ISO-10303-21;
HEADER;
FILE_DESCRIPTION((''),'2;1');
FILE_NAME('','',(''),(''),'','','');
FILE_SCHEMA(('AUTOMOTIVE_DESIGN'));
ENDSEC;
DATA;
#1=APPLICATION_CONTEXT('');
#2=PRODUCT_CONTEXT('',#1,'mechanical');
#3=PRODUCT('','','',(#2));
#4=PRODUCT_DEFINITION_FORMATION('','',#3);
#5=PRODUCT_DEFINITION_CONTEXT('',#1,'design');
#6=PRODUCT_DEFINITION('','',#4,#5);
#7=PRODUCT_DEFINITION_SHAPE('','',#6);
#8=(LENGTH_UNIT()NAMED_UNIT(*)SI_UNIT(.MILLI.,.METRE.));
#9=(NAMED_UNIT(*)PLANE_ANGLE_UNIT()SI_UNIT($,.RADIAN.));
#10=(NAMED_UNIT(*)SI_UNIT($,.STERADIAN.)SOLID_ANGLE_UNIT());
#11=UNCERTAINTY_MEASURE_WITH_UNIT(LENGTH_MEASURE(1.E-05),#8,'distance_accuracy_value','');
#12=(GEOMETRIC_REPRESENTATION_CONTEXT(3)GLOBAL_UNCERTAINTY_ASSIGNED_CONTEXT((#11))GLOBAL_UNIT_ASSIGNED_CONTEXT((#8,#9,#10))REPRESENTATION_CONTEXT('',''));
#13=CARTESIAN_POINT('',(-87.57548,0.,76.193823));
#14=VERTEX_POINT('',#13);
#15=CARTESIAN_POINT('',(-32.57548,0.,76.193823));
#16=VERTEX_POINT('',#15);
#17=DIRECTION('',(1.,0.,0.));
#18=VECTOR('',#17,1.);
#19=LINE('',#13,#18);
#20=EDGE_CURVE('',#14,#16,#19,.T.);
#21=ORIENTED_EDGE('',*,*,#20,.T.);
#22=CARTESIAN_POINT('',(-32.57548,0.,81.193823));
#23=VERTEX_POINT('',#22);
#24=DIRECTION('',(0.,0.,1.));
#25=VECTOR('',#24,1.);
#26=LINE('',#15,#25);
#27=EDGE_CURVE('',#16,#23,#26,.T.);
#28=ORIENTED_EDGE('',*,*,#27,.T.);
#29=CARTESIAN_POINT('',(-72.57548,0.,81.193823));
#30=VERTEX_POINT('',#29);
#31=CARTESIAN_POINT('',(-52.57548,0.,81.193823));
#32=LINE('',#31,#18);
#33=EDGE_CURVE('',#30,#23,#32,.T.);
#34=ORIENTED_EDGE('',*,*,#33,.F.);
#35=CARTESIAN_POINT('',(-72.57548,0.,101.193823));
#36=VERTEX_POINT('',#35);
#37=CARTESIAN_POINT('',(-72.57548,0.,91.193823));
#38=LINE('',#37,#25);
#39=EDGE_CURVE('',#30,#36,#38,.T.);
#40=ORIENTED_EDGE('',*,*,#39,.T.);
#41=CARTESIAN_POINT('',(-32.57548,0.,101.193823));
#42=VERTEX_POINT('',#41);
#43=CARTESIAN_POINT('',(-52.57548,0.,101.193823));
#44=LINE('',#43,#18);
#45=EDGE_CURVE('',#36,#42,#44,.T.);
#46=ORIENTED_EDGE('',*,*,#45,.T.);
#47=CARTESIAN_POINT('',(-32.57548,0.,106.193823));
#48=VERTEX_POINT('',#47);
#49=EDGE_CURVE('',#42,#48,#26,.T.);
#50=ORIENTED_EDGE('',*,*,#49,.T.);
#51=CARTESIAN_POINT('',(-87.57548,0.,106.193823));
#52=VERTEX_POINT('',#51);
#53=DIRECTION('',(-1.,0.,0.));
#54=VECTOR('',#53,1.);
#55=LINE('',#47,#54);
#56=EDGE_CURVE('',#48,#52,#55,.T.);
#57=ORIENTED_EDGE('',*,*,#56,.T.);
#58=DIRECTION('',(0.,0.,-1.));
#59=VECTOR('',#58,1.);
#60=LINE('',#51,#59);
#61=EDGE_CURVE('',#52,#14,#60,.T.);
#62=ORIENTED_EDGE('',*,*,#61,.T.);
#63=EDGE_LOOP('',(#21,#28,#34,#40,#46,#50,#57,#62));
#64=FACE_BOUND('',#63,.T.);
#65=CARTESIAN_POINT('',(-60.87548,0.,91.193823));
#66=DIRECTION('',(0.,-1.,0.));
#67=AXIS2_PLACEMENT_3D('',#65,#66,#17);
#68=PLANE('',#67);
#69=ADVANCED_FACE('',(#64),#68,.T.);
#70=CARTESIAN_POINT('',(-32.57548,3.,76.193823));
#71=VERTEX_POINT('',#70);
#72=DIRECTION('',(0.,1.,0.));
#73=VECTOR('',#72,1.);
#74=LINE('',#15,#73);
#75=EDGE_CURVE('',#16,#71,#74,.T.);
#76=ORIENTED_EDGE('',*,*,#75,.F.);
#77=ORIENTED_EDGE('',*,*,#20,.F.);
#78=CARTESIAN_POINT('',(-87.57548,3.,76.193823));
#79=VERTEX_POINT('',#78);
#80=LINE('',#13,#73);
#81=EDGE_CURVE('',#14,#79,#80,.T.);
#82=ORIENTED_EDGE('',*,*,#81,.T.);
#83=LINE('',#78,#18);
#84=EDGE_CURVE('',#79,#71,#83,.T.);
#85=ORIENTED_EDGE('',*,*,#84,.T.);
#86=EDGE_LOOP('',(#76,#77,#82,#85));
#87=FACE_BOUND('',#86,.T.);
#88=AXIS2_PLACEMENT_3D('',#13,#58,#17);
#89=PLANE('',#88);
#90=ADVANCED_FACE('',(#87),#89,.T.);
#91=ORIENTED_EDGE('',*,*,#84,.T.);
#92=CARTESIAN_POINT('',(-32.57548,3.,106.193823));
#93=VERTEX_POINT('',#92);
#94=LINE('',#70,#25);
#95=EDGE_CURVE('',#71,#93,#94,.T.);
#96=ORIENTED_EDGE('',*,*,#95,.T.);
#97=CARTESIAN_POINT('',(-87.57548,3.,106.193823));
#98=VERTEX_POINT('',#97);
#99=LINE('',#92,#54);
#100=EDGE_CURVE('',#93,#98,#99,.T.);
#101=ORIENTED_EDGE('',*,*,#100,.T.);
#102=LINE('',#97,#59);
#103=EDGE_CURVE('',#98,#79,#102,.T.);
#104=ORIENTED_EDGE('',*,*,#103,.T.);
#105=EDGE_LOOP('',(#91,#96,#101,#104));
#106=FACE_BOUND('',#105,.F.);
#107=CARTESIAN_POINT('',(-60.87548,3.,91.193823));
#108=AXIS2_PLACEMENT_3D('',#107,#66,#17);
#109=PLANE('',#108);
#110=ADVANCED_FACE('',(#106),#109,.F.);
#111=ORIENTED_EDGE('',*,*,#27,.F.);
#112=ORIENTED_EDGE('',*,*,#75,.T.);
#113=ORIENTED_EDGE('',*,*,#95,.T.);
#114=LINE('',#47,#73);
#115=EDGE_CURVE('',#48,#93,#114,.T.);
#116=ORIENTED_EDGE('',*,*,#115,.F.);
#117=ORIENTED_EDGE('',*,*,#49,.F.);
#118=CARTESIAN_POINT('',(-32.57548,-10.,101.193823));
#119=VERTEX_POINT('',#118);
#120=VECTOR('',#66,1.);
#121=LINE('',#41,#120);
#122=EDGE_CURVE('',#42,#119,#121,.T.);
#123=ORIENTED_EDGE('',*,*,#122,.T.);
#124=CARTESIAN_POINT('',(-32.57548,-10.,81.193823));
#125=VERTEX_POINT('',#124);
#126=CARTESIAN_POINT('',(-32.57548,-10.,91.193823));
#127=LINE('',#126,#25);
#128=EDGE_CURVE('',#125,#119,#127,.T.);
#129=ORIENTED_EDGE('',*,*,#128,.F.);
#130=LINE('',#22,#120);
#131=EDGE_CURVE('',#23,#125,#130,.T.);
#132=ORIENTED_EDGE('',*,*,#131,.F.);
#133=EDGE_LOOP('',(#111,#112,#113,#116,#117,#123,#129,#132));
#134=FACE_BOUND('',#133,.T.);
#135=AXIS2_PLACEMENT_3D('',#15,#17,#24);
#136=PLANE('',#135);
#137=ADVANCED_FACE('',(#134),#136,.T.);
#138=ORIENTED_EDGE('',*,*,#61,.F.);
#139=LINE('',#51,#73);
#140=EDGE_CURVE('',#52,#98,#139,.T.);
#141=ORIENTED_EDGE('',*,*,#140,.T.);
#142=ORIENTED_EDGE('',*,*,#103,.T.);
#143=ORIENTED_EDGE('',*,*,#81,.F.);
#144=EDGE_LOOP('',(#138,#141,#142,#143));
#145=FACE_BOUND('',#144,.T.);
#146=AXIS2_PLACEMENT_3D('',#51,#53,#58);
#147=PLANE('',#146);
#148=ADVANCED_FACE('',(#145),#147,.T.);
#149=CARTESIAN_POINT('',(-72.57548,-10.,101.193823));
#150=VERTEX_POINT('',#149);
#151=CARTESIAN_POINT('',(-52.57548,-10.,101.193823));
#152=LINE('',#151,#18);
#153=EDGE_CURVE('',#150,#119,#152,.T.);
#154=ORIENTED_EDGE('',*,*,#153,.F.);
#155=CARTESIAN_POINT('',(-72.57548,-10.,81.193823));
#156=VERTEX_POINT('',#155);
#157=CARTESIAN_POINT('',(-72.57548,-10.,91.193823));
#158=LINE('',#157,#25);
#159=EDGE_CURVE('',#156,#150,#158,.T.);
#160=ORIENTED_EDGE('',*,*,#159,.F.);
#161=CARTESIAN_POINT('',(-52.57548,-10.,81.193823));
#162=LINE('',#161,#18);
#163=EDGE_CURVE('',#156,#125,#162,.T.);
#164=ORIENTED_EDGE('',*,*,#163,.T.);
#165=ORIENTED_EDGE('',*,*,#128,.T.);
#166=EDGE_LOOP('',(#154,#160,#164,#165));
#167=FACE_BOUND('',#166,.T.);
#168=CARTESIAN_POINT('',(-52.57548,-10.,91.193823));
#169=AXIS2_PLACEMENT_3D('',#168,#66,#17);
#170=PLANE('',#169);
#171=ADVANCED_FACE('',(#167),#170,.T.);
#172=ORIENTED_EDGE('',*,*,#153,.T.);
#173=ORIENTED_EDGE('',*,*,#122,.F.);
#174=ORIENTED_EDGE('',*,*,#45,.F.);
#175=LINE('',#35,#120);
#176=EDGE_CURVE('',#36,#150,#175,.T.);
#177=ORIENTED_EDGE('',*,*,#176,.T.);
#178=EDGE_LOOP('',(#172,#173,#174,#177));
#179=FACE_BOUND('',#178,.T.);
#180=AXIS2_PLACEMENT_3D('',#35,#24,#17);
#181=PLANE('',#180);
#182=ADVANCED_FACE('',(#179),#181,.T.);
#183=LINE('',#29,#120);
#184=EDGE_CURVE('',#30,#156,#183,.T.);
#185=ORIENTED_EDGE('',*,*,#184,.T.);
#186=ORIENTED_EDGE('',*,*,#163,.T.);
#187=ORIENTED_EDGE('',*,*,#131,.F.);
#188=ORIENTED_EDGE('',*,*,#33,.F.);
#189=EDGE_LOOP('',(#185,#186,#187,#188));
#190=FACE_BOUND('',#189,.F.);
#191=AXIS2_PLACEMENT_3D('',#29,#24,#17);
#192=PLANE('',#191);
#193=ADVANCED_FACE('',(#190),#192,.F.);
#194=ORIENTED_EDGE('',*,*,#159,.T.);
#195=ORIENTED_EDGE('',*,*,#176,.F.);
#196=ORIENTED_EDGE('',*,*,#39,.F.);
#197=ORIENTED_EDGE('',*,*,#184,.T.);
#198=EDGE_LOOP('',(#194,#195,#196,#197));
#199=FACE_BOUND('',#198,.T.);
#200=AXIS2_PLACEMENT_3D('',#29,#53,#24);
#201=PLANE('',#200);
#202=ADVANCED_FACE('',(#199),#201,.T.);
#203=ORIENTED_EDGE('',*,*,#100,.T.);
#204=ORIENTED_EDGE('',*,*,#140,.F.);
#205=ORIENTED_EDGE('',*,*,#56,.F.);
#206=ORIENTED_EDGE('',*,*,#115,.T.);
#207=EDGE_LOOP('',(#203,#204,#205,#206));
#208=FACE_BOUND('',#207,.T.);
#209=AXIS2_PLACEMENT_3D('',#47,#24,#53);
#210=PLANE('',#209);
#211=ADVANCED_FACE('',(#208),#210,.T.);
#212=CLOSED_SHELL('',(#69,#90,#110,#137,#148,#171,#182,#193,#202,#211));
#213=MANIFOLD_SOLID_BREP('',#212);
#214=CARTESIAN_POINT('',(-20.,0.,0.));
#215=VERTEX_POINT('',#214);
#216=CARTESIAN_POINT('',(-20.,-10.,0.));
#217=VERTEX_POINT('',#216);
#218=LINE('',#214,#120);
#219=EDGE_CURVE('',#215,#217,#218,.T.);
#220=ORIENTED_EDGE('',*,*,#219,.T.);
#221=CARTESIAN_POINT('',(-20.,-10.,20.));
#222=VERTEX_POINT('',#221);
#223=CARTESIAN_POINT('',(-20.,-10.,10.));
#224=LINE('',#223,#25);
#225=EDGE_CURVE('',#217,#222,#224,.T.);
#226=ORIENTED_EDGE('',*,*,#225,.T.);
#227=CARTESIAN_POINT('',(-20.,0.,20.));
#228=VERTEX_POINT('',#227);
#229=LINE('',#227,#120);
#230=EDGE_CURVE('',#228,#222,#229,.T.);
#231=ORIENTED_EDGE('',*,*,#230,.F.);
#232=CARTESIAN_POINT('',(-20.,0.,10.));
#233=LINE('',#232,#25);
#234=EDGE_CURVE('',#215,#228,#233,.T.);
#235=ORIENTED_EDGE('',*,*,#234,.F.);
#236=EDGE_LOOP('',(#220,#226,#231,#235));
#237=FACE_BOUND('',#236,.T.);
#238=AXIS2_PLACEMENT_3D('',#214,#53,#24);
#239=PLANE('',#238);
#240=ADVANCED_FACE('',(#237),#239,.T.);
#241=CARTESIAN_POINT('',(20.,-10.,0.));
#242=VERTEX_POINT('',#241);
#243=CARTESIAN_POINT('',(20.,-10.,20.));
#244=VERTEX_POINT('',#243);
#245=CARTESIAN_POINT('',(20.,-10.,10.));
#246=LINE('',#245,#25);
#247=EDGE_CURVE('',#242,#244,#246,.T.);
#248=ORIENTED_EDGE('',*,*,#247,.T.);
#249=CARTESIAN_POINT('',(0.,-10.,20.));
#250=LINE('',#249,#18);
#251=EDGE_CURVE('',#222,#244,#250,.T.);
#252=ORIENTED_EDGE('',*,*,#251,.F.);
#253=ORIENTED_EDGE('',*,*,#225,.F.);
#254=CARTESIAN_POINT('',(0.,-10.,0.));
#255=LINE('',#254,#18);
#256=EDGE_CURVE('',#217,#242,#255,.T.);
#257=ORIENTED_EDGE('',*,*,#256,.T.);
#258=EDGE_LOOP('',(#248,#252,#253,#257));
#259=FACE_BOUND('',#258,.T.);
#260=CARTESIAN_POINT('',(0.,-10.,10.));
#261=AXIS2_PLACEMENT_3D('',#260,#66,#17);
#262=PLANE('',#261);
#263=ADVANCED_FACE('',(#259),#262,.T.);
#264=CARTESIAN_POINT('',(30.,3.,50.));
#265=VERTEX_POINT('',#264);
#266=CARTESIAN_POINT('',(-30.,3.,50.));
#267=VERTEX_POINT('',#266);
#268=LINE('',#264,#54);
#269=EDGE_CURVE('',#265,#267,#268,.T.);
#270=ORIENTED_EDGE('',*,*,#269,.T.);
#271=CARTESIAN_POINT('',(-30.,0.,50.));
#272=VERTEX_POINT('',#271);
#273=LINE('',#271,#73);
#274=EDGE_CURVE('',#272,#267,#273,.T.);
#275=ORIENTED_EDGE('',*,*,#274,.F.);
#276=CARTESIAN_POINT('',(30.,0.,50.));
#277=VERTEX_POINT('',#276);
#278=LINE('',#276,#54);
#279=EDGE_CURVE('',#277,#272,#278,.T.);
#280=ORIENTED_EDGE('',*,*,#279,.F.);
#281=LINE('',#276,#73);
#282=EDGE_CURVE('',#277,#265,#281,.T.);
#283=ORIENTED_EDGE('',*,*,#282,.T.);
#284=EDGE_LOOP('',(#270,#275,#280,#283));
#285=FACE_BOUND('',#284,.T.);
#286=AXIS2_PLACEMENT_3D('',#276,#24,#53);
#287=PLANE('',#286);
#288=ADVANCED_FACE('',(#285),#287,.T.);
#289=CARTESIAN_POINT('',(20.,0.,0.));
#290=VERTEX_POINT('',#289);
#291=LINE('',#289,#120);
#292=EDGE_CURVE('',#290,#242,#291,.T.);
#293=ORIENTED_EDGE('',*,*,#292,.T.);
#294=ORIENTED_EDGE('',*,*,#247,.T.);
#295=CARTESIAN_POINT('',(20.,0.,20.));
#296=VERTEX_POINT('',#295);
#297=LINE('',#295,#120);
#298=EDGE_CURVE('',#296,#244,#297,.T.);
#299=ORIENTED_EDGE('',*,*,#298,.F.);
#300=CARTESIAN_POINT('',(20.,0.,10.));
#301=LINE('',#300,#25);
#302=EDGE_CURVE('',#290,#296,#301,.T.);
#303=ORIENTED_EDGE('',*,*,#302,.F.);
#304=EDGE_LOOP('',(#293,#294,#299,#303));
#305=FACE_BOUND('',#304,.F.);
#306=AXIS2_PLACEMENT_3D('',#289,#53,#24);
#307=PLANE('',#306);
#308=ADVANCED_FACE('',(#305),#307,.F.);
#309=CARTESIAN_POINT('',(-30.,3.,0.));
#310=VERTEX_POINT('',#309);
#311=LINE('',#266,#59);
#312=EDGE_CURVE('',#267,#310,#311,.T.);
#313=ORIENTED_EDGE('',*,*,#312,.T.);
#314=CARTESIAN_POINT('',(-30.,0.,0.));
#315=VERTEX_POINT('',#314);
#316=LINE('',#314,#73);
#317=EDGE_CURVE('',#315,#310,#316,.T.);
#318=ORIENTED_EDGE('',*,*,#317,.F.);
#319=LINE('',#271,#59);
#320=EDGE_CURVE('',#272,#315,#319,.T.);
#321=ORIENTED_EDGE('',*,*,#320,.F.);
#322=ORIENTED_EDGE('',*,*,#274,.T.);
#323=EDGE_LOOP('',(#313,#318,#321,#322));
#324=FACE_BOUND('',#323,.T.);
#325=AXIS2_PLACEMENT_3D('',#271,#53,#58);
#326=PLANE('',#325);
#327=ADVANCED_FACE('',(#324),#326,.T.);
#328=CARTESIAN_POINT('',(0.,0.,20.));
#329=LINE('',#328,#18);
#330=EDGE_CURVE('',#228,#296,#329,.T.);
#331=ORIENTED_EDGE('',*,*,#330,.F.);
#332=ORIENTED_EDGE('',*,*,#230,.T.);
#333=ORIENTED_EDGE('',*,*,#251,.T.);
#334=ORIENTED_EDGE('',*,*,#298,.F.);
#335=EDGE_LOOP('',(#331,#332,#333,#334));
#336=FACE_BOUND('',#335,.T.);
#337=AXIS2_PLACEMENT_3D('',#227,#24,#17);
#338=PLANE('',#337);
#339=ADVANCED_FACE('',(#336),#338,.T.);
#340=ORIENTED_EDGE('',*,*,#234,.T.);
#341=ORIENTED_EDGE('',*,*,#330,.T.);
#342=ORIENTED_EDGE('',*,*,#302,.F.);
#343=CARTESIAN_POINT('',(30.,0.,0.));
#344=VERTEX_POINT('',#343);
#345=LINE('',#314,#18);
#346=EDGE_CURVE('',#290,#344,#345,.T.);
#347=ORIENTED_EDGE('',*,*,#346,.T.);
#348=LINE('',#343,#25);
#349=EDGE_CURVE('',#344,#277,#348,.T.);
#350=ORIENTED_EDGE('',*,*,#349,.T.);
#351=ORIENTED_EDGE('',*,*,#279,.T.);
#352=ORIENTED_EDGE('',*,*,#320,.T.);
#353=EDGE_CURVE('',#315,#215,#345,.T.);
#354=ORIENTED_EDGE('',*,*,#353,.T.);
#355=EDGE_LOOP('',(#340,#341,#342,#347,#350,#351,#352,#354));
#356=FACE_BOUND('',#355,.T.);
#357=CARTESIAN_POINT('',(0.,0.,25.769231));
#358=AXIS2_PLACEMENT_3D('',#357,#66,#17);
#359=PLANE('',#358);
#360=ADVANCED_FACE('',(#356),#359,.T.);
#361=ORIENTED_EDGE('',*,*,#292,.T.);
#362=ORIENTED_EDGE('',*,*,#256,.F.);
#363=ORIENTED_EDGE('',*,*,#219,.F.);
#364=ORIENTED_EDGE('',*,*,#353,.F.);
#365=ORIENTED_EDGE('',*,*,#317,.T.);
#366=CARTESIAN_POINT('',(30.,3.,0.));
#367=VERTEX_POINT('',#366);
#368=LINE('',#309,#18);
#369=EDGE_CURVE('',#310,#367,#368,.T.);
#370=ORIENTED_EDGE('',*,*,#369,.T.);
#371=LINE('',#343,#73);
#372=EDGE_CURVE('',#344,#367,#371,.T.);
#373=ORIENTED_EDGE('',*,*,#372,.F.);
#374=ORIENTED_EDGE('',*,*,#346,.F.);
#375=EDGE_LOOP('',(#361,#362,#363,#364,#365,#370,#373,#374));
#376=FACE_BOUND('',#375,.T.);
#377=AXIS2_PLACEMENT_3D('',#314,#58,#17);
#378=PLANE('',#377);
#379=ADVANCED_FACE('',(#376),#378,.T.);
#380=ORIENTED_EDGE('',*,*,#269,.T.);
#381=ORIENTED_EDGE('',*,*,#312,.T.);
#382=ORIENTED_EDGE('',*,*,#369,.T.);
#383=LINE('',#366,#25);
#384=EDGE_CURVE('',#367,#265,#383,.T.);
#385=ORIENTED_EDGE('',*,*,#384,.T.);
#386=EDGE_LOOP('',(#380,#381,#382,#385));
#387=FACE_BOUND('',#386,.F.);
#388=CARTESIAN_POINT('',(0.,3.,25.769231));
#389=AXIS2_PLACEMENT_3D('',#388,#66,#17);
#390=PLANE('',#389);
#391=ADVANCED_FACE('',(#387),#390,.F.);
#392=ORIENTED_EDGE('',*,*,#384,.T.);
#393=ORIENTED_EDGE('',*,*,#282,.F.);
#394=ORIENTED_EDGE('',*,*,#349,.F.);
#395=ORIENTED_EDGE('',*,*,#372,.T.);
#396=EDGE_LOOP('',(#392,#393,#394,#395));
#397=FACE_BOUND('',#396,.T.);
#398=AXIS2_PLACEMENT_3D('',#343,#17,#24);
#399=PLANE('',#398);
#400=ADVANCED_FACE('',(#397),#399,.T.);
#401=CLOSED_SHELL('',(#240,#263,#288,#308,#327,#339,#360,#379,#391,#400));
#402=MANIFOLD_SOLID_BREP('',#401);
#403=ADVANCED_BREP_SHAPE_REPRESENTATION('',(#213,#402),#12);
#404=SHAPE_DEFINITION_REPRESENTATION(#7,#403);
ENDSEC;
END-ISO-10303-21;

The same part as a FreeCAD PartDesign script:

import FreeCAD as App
import Part
import Sketcher

V = App.Vector

doc = App.newDocument("Part")
body = doc.addObject("PartDesign::Body", "Body")
body.AllowCompound = True

sketch1 = doc.addObject("Sketcher::SketchObject", "Sketch")
body.addObject(sketch1)
sketch1.AttachmentSupport = (doc.XZ_Plane, [""])
sketch1.MapMode = "FlatFace"
sketch1.addGeometry(Part.LineSegment(V(30, 50, 0), V(-30, 50, 0)), False)
sketch1.addGeometry(Part.LineSegment(V(-30, 50, 0), V(-30, 0, 0)), False)
sketch1.addGeometry(Part.LineSegment(V(-30, 0, 0), V(30, 0, 0)), False)
sketch1.addGeometry(Part.LineSegment(V(30, 0, 0), V(30, 50, 0)), False)
sketch1.addGeometry(Part.LineSegment(V(-33, 106, 0), V(-88, 106, 0)), False)
sketch1.addGeometry(Part.LineSegment(V(-88, 106, 0), V(-88, 76, 0)), False)
sketch1.addGeometry(Part.LineSegment(V(-88, 76, 0), V(-33, 76, 0)), False)
sketch1.addGeometry(Part.LineSegment(V(-33, 76, 0), V(-33, 106, 0)), False)
sketch1.addConstraint(Sketcher.Constraint("Coincident", 0, 2, 1, 1))
sketch1.addConstraint(Sketcher.Constraint("Coincident", 1, 2, 2, 1))
sketch1.addConstraint(Sketcher.Constraint("Coincident", 2, 2, 3, 1))
sketch1.addConstraint(Sketcher.Constraint("Coincident", 3, 2, 0, 1))
sketch1.addConstraint(Sketcher.Constraint("Coincident", 4, 2, 5, 1))
sketch1.addConstraint(Sketcher.Constraint("Coincident", 5, 2, 6, 1))
sketch1.addConstraint(Sketcher.Constraint("Coincident", 6, 2, 7, 1))
sketch1.addConstraint(Sketcher.Constraint("Coincident", 7, 2, 4, 1))
sketch1.addConstraint(Sketcher.Constraint("Horizontal", 0))
sketch1.addConstraint(Sketcher.Constraint("Vertical", 1))
sketch1.addConstraint(Sketcher.Constraint("Horizontal", 2))
sketch1.addConstraint(Sketcher.Constraint("Vertical", 3))
sketch1.addConstraint(Sketcher.Constraint("Horizontal", 4))
sketch1.addConstraint(Sketcher.Constraint("Vertical", 5))
sketch1.addConstraint(Sketcher.Constraint("Horizontal", 6))
sketch1.addConstraint(Sketcher.Constraint("Vertical", 7))
sketch1.addConstraint(Sketcher.Constraint("Symmetric", 1, 2, 2, 2, -1, 1))
sketch1.addConstraint(Sketcher.Constraint("DistanceX", 0, 2, 0, 1, 60.0))
sketch1.addConstraint(Sketcher.Constraint("DistanceX", 4, 2, 4, 1, 55.0))
sketch1.addConstraint(Sketcher.Constraint("DistanceY", 1, 2, 1, 1, 50.0))
sketch1.addConstraint(Sketcher.Constraint("DistanceY", 5, 2, 5, 1, 30.0))
sketch1.addConstraint(Sketcher.Constraint("DistanceX", 4, 2, -1, 1, 87.57548))
sketch1.addConstraint(Sketcher.Constraint("DistanceY", -1, 1, 4, 2, 106.193823))
pad1 = doc.addObject("PartDesign::Pad", "Pad")
body.addObject(pad1)
pad1.Profile = sketch1
pad1.Length = 3
pad1.Reversed = True

sketch2 = doc.addObject("Sketcher::SketchObject", "Sketch001")
body.addObject(sketch2)
sketch2.AttachmentSupport = (doc.XZ_Plane, [""])
sketch2.MapMode = "FlatFace"
sketch2.addGeometry(Part.LineSegment(V(-20, 20, 0), V(-20, 0, 0)), False)
sketch2.addGeometry(Part.LineSegment(V(-20, 0, 0), V(20, 0, 0)), False)
sketch2.addGeometry(Part.LineSegment(V(20, 0, 0), V(20, 20, 0)), False)
sketch2.addGeometry(Part.LineSegment(V(20, 20, 0), V(-20, 20, 0)), False)
sketch2.addGeometry(Part.LineSegment(V(-73, 101, 0), V(-73, 81, 0)), False)
sketch2.addGeometry(Part.LineSegment(V(-73, 81, 0), V(-33, 81, 0)), False)
sketch2.addGeometry(Part.LineSegment(V(-33, 81, 0), V(-33, 101, 0)), False)
sketch2.addGeometry(Part.LineSegment(V(-33, 101, 0), V(-73, 101, 0)), False)
sketch2.addConstraint(Sketcher.Constraint("Coincident", 0, 2, 1, 1))
sketch2.addConstraint(Sketcher.Constraint("Coincident", 1, 2, 2, 1))
sketch2.addConstraint(Sketcher.Constraint("Coincident", 2, 2, 3, 1))
sketch2.addConstraint(Sketcher.Constraint("Coincident", 3, 2, 0, 1))
sketch2.addConstraint(Sketcher.Constraint("Coincident", 4, 2, 5, 1))
sketch2.addConstraint(Sketcher.Constraint("Coincident", 5, 2, 6, 1))
sketch2.addConstraint(Sketcher.Constraint("Coincident", 6, 2, 7, 1))
sketch2.addConstraint(Sketcher.Constraint("Coincident", 7, 2, 4, 1))
sketch2.addConstraint(Sketcher.Constraint("Vertical", 0))
sketch2.addConstraint(Sketcher.Constraint("Horizontal", 1))
sketch2.addConstraint(Sketcher.Constraint("Vertical", 2))
sketch2.addConstraint(Sketcher.Constraint("Horizontal", 3))
sketch2.addConstraint(Sketcher.Constraint("Vertical", 4))
sketch2.addConstraint(Sketcher.Constraint("Horizontal", 5))
sketch2.addConstraint(Sketcher.Constraint("Vertical", 6))
sketch2.addConstraint(Sketcher.Constraint("Horizontal", 7))
sketch2.addConstraint(Sketcher.Constraint("Symmetric", 0, 2, 1, 2, -1, 1))
sketch2.addConstraint(Sketcher.Constraint("Equal", 3, 5))
sketch2.addConstraint(Sketcher.Constraint("Equal", 2, 4))
sketch2.addConstraint(Sketcher.Constraint("DistanceX", 1, 1, 1, 2, 40.0))
sketch2.addConstraint(Sketcher.Constraint("DistanceY", 0, 2, 0, 1, 20.0))
sketch2.addConstraint(Sketcher.Constraint("DistanceX", 4, 2, -1, 1, 72.57548))
sketch2.addConstraint(Sketcher.Constraint("DistanceY", -1, 1, 4, 2, 81.193823))
pad2 = doc.addObject("PartDesign::Pad", "Pad001")
body.addObject(pad2)
pad2.Profile = sketch2
pad2.Length = 10

doc.recompute()
